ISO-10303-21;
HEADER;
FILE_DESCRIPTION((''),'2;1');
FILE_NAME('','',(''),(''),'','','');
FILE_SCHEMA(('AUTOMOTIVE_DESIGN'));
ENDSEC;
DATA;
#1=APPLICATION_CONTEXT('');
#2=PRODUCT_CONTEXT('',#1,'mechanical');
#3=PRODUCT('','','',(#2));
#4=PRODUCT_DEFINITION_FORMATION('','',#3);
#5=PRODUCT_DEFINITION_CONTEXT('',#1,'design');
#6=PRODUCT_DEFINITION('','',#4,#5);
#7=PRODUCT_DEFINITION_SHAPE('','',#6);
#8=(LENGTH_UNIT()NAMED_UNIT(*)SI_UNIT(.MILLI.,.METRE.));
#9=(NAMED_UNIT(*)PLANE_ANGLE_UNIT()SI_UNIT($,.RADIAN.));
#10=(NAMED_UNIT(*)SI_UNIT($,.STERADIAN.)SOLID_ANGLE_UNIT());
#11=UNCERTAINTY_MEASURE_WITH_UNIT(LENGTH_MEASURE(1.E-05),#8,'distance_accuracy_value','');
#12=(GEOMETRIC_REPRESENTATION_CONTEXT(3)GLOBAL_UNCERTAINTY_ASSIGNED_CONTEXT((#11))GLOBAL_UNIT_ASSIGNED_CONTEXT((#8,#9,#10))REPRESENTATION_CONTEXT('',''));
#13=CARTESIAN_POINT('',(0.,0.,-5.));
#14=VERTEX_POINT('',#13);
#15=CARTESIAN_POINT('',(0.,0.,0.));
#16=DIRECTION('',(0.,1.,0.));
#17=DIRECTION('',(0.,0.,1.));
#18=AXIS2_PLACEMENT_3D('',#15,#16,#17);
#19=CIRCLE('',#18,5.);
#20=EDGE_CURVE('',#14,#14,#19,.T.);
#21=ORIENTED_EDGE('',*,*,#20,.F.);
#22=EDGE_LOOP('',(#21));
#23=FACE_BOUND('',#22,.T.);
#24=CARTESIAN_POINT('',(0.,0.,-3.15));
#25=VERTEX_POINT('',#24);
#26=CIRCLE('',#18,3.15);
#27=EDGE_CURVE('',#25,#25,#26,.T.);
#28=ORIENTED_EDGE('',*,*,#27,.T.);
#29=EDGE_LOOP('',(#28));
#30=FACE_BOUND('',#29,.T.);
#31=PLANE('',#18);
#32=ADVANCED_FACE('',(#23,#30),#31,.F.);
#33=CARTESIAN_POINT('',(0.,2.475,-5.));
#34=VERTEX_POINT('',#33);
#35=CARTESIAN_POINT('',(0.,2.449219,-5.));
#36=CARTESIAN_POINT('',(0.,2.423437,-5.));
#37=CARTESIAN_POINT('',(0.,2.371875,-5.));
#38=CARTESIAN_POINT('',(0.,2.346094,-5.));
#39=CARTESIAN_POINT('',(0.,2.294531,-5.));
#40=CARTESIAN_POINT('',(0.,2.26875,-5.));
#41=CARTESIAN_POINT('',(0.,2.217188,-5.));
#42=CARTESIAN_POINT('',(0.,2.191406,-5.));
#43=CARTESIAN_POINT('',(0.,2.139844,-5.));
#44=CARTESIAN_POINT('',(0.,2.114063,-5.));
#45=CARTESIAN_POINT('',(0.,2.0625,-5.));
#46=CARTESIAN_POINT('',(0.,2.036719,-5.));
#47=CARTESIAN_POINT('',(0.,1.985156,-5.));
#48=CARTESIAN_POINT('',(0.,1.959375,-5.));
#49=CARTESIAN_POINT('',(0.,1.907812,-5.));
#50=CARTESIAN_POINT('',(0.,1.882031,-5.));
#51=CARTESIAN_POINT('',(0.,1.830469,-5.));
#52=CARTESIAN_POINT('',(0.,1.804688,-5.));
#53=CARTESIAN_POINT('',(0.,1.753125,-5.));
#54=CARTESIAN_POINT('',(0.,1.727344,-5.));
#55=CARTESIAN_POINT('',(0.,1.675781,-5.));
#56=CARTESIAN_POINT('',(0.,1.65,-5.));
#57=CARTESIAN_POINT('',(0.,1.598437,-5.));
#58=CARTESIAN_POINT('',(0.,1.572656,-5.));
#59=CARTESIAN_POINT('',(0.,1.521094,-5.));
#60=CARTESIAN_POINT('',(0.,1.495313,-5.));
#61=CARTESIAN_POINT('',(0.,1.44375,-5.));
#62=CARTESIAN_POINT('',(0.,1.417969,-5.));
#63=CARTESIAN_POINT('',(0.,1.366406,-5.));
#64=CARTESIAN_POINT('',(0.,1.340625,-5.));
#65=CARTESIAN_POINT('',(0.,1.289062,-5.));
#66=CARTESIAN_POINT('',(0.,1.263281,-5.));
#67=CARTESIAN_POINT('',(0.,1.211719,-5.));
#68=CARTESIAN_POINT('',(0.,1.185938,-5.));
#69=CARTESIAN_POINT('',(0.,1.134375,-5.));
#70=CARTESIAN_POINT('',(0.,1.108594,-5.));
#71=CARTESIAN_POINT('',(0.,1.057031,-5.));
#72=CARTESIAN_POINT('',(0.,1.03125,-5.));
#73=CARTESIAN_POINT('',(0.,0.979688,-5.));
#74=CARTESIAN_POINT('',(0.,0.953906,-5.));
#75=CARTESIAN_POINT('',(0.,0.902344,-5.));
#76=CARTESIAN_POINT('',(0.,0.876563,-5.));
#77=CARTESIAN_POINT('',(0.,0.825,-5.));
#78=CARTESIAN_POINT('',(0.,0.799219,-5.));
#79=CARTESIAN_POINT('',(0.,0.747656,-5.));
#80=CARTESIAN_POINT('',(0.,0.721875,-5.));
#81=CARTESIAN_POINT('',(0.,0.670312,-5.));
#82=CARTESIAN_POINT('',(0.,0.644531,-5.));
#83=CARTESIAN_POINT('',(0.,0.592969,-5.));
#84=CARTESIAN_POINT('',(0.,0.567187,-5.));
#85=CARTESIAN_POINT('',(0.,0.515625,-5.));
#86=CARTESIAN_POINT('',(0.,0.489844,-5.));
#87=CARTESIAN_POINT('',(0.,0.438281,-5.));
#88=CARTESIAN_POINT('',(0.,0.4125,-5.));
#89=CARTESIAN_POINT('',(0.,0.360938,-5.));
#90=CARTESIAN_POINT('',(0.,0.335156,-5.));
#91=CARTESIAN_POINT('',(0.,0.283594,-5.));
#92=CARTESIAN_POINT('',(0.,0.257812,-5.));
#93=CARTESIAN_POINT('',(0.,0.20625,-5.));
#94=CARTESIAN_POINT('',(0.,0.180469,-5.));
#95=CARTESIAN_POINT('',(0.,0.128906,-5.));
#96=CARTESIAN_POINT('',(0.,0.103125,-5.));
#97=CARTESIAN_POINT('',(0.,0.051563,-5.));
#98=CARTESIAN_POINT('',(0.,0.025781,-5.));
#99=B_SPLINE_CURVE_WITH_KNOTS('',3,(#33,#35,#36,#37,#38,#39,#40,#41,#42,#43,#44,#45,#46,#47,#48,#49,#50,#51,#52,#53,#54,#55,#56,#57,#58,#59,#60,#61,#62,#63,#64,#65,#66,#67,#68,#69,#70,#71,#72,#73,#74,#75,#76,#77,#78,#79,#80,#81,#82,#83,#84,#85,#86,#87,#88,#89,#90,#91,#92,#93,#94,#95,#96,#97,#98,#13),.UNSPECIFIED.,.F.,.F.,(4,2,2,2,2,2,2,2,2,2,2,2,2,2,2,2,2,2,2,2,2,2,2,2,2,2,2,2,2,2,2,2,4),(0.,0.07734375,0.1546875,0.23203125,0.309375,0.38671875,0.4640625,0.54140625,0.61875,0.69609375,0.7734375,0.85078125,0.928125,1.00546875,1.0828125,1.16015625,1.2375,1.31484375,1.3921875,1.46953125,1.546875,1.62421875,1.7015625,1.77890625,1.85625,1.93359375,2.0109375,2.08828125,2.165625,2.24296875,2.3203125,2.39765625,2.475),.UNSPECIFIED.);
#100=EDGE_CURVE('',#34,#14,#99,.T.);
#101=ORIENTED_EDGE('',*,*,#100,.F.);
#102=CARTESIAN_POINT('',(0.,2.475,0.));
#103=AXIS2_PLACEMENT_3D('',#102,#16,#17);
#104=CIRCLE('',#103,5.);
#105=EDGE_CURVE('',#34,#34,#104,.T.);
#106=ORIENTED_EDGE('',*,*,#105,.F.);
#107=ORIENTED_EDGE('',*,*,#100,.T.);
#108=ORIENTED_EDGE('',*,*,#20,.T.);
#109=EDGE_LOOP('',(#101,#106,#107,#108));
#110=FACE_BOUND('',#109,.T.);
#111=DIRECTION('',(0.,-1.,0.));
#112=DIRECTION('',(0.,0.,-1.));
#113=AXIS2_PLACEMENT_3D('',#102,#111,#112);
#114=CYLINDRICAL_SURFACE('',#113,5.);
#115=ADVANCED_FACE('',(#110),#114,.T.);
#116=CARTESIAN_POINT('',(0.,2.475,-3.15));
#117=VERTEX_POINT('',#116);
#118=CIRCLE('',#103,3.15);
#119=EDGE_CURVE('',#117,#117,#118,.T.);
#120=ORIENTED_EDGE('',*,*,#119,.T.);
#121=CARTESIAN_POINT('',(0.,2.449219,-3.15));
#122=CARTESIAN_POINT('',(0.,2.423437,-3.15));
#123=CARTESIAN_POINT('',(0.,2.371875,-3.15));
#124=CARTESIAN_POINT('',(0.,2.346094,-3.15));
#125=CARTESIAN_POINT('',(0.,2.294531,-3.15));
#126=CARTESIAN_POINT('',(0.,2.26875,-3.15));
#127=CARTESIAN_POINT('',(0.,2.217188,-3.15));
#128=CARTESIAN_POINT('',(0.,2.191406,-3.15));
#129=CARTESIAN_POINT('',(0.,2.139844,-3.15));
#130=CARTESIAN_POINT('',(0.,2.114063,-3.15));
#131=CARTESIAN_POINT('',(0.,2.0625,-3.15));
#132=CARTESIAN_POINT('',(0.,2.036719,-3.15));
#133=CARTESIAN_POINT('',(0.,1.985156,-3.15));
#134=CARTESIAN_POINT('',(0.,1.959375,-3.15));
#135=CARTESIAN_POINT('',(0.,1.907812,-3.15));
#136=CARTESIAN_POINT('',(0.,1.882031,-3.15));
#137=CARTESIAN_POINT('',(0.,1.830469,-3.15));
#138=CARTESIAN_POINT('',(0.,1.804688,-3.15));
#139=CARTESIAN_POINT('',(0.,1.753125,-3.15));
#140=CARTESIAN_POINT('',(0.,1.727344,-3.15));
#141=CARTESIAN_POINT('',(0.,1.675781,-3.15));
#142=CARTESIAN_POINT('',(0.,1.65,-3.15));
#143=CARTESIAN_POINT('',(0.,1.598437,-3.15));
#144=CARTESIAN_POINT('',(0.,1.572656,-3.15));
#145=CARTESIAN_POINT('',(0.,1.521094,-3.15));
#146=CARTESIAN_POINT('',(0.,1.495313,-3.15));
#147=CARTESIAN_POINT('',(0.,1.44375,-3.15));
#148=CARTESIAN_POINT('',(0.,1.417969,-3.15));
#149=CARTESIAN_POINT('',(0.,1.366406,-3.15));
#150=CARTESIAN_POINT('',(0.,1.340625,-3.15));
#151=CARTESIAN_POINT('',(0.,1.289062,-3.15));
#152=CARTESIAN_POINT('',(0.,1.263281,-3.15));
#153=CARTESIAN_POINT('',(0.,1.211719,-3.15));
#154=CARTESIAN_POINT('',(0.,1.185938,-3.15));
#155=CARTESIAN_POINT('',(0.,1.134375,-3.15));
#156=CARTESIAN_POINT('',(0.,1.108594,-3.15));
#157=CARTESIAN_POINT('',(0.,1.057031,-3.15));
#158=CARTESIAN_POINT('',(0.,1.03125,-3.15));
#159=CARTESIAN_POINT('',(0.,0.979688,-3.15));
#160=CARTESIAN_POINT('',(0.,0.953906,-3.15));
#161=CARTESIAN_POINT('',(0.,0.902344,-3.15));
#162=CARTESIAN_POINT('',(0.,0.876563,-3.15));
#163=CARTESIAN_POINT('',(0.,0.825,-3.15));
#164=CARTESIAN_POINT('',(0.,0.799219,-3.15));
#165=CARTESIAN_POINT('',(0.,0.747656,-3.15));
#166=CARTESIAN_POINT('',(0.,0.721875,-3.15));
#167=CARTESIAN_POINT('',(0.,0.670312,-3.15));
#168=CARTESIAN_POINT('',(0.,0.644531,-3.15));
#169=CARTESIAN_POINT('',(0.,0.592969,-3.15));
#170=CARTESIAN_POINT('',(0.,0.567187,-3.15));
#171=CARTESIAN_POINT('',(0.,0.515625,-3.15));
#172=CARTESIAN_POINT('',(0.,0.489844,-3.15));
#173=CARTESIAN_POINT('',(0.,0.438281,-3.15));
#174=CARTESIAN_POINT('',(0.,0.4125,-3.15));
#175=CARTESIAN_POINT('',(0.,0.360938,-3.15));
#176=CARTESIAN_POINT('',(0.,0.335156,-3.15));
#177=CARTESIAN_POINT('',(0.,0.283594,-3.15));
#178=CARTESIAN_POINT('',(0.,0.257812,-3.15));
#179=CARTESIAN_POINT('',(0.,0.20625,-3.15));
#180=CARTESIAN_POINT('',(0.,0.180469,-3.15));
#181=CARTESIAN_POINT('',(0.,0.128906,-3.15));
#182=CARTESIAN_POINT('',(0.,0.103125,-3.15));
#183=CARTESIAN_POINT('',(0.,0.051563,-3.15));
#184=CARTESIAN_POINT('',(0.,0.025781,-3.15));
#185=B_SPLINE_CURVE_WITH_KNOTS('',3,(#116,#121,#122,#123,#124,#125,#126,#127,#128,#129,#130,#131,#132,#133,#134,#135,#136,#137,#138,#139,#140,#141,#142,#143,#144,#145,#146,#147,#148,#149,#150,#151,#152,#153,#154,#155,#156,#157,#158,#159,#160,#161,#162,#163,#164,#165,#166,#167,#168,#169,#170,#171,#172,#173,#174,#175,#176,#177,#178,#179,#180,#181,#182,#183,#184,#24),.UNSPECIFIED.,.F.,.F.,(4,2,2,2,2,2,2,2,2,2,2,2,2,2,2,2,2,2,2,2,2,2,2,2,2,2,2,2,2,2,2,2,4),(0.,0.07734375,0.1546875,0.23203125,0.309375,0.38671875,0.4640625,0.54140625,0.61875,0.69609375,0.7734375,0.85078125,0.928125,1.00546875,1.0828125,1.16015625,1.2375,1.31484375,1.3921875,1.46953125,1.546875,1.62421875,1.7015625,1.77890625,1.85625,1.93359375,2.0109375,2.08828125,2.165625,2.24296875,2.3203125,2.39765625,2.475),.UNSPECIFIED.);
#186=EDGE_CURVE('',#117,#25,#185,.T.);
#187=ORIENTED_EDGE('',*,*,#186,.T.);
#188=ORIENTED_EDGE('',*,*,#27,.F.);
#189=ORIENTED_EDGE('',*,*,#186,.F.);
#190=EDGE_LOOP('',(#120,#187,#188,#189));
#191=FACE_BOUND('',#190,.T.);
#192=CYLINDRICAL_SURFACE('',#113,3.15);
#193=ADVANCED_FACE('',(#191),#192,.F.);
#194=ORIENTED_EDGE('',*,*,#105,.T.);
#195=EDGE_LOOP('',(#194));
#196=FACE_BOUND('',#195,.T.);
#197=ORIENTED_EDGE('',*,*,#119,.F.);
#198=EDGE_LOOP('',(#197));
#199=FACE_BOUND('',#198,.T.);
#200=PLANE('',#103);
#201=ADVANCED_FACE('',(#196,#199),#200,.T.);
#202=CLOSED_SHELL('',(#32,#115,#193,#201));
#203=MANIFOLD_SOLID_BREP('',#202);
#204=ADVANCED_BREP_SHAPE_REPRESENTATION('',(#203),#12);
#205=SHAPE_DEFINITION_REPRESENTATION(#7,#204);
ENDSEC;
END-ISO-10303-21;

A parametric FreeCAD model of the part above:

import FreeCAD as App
import Part
import Sketcher
from FreeCAD import Vector
Q = App.Units.Quantity

doc = App.newDocument("Part")
body = doc.addObject("PartDesign::Body", "Body")

# Sketch on XZ plane
sketch1 = body.newObject("Sketcher::SketchObject", "Sketch")
sketch1.AttachmentSupport = (doc.getObject("XZ_Plane"), [""])
sketch1.MapMode = "FlatFace"
sketch1.addGeometry(Part.Circle(Vector(0, 0, 0), Vector(0, 0, 1), 5), False)
sketch1.addGeometry(Part.Circle(Vector(0, 0, 0), Vector(0, 0, 1), 3.15), False)
sketch1.addConstraint(Sketcher.Constraint("Coincident", 0, 3, -1, 1))
sketch1.addConstraint(Sketcher.Constraint("Coincident", 1, 3, -1, 1))
sketch1.addConstraint(Sketcher.Constraint("Diameter", 0, Q("10 mm")))
sketch1.addConstraint(Sketcher.Constraint("Diameter", 1, Q("6.3 mm")))
pad1 = body.newObject("PartDesign::Pad", "Pad")
pad1.Profile = sketch1
pad1.Length = 2.475
pad1.Reversed = True

doc.recompute()
